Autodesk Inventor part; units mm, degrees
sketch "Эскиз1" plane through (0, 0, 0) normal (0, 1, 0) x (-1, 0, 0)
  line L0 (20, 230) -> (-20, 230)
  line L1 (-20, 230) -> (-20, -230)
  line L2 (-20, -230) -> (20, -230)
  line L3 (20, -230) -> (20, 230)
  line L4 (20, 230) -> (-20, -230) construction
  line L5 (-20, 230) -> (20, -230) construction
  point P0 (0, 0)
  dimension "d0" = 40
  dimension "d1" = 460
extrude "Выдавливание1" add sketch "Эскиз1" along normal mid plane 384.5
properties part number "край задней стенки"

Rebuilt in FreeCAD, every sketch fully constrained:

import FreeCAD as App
import Part
import Sketcher

V = App.Vector


def add_polygon(sketch, points):
    """Adds a closed chain of lines whose ends are joined by coincident constraints."""
    first, n = sketch.GeometryCount, len(points)
    for a, b in zip(points, points[1:] + points[:1]):
        sketch.addGeometry(Part.LineSegment(App.Vector(*a, 0), App.Vector(*b, 0)), False)
    for i in range(n):
        sketch.addConstraint(Sketcher.Constraint("Coincident", first + i, 2, first + (i + 1) % n, 1))

doc = App.newDocument("Part")
params = doc.addObject("Spreadsheet::Sheet", "Params")
for row, (alias, value) in enumerate([
    ("sketch1_width", "40 mm"),
    ("sketch1_height", "460 mm"),
    ("pad1_length", "384.5 mm"),
], start=1):
    params.set(f"A{row}", alias)
    params.set(f"B{row}", "=" + value)
    params.setAlias(f"B{row}", alias)

body = doc.addObject("PartDesign::Body", "Body")

sketch1 = body.newObject("Sketcher::SketchObject", "Sketch")
sketch1.AttachmentSupport = (doc.getObject("XZ_Plane"), [""])
sketch1.MapMode = "FlatFace"
add_polygon(sketch1, [(-20, -230), (-20, 230), (20, 230), (20, -230)])
sketch1.addConstraint([
    Sketcher.Constraint("Vertical", 0),
    Sketcher.Constraint("Horizontal", 1),
    Sketcher.Constraint("Vertical", 2),
    Sketcher.Constraint("Horizontal", 3),
    Sketcher.Constraint("Symmetric", 0, 2, 2, 2, -1, 1),
    Sketcher.Constraint("DistanceX", 1, 1, 1, 2, 40.0),
    Sketcher.Constraint("DistanceY", 0, 1, 0, 2, 460.0),
])
sketch1.setExpression("Constraints[9]", "Params.sketch1_width")
sketch1.setExpression("Constraints[10]", "Params.sketch1_height")
pad1 = body.newObject("PartDesign::Pad", "Pad")
pad1.Profile = sketch1
pad1.setExpression("Length", "Params.pad1_length")
pad1.Midplane = True

doc.recompute()
